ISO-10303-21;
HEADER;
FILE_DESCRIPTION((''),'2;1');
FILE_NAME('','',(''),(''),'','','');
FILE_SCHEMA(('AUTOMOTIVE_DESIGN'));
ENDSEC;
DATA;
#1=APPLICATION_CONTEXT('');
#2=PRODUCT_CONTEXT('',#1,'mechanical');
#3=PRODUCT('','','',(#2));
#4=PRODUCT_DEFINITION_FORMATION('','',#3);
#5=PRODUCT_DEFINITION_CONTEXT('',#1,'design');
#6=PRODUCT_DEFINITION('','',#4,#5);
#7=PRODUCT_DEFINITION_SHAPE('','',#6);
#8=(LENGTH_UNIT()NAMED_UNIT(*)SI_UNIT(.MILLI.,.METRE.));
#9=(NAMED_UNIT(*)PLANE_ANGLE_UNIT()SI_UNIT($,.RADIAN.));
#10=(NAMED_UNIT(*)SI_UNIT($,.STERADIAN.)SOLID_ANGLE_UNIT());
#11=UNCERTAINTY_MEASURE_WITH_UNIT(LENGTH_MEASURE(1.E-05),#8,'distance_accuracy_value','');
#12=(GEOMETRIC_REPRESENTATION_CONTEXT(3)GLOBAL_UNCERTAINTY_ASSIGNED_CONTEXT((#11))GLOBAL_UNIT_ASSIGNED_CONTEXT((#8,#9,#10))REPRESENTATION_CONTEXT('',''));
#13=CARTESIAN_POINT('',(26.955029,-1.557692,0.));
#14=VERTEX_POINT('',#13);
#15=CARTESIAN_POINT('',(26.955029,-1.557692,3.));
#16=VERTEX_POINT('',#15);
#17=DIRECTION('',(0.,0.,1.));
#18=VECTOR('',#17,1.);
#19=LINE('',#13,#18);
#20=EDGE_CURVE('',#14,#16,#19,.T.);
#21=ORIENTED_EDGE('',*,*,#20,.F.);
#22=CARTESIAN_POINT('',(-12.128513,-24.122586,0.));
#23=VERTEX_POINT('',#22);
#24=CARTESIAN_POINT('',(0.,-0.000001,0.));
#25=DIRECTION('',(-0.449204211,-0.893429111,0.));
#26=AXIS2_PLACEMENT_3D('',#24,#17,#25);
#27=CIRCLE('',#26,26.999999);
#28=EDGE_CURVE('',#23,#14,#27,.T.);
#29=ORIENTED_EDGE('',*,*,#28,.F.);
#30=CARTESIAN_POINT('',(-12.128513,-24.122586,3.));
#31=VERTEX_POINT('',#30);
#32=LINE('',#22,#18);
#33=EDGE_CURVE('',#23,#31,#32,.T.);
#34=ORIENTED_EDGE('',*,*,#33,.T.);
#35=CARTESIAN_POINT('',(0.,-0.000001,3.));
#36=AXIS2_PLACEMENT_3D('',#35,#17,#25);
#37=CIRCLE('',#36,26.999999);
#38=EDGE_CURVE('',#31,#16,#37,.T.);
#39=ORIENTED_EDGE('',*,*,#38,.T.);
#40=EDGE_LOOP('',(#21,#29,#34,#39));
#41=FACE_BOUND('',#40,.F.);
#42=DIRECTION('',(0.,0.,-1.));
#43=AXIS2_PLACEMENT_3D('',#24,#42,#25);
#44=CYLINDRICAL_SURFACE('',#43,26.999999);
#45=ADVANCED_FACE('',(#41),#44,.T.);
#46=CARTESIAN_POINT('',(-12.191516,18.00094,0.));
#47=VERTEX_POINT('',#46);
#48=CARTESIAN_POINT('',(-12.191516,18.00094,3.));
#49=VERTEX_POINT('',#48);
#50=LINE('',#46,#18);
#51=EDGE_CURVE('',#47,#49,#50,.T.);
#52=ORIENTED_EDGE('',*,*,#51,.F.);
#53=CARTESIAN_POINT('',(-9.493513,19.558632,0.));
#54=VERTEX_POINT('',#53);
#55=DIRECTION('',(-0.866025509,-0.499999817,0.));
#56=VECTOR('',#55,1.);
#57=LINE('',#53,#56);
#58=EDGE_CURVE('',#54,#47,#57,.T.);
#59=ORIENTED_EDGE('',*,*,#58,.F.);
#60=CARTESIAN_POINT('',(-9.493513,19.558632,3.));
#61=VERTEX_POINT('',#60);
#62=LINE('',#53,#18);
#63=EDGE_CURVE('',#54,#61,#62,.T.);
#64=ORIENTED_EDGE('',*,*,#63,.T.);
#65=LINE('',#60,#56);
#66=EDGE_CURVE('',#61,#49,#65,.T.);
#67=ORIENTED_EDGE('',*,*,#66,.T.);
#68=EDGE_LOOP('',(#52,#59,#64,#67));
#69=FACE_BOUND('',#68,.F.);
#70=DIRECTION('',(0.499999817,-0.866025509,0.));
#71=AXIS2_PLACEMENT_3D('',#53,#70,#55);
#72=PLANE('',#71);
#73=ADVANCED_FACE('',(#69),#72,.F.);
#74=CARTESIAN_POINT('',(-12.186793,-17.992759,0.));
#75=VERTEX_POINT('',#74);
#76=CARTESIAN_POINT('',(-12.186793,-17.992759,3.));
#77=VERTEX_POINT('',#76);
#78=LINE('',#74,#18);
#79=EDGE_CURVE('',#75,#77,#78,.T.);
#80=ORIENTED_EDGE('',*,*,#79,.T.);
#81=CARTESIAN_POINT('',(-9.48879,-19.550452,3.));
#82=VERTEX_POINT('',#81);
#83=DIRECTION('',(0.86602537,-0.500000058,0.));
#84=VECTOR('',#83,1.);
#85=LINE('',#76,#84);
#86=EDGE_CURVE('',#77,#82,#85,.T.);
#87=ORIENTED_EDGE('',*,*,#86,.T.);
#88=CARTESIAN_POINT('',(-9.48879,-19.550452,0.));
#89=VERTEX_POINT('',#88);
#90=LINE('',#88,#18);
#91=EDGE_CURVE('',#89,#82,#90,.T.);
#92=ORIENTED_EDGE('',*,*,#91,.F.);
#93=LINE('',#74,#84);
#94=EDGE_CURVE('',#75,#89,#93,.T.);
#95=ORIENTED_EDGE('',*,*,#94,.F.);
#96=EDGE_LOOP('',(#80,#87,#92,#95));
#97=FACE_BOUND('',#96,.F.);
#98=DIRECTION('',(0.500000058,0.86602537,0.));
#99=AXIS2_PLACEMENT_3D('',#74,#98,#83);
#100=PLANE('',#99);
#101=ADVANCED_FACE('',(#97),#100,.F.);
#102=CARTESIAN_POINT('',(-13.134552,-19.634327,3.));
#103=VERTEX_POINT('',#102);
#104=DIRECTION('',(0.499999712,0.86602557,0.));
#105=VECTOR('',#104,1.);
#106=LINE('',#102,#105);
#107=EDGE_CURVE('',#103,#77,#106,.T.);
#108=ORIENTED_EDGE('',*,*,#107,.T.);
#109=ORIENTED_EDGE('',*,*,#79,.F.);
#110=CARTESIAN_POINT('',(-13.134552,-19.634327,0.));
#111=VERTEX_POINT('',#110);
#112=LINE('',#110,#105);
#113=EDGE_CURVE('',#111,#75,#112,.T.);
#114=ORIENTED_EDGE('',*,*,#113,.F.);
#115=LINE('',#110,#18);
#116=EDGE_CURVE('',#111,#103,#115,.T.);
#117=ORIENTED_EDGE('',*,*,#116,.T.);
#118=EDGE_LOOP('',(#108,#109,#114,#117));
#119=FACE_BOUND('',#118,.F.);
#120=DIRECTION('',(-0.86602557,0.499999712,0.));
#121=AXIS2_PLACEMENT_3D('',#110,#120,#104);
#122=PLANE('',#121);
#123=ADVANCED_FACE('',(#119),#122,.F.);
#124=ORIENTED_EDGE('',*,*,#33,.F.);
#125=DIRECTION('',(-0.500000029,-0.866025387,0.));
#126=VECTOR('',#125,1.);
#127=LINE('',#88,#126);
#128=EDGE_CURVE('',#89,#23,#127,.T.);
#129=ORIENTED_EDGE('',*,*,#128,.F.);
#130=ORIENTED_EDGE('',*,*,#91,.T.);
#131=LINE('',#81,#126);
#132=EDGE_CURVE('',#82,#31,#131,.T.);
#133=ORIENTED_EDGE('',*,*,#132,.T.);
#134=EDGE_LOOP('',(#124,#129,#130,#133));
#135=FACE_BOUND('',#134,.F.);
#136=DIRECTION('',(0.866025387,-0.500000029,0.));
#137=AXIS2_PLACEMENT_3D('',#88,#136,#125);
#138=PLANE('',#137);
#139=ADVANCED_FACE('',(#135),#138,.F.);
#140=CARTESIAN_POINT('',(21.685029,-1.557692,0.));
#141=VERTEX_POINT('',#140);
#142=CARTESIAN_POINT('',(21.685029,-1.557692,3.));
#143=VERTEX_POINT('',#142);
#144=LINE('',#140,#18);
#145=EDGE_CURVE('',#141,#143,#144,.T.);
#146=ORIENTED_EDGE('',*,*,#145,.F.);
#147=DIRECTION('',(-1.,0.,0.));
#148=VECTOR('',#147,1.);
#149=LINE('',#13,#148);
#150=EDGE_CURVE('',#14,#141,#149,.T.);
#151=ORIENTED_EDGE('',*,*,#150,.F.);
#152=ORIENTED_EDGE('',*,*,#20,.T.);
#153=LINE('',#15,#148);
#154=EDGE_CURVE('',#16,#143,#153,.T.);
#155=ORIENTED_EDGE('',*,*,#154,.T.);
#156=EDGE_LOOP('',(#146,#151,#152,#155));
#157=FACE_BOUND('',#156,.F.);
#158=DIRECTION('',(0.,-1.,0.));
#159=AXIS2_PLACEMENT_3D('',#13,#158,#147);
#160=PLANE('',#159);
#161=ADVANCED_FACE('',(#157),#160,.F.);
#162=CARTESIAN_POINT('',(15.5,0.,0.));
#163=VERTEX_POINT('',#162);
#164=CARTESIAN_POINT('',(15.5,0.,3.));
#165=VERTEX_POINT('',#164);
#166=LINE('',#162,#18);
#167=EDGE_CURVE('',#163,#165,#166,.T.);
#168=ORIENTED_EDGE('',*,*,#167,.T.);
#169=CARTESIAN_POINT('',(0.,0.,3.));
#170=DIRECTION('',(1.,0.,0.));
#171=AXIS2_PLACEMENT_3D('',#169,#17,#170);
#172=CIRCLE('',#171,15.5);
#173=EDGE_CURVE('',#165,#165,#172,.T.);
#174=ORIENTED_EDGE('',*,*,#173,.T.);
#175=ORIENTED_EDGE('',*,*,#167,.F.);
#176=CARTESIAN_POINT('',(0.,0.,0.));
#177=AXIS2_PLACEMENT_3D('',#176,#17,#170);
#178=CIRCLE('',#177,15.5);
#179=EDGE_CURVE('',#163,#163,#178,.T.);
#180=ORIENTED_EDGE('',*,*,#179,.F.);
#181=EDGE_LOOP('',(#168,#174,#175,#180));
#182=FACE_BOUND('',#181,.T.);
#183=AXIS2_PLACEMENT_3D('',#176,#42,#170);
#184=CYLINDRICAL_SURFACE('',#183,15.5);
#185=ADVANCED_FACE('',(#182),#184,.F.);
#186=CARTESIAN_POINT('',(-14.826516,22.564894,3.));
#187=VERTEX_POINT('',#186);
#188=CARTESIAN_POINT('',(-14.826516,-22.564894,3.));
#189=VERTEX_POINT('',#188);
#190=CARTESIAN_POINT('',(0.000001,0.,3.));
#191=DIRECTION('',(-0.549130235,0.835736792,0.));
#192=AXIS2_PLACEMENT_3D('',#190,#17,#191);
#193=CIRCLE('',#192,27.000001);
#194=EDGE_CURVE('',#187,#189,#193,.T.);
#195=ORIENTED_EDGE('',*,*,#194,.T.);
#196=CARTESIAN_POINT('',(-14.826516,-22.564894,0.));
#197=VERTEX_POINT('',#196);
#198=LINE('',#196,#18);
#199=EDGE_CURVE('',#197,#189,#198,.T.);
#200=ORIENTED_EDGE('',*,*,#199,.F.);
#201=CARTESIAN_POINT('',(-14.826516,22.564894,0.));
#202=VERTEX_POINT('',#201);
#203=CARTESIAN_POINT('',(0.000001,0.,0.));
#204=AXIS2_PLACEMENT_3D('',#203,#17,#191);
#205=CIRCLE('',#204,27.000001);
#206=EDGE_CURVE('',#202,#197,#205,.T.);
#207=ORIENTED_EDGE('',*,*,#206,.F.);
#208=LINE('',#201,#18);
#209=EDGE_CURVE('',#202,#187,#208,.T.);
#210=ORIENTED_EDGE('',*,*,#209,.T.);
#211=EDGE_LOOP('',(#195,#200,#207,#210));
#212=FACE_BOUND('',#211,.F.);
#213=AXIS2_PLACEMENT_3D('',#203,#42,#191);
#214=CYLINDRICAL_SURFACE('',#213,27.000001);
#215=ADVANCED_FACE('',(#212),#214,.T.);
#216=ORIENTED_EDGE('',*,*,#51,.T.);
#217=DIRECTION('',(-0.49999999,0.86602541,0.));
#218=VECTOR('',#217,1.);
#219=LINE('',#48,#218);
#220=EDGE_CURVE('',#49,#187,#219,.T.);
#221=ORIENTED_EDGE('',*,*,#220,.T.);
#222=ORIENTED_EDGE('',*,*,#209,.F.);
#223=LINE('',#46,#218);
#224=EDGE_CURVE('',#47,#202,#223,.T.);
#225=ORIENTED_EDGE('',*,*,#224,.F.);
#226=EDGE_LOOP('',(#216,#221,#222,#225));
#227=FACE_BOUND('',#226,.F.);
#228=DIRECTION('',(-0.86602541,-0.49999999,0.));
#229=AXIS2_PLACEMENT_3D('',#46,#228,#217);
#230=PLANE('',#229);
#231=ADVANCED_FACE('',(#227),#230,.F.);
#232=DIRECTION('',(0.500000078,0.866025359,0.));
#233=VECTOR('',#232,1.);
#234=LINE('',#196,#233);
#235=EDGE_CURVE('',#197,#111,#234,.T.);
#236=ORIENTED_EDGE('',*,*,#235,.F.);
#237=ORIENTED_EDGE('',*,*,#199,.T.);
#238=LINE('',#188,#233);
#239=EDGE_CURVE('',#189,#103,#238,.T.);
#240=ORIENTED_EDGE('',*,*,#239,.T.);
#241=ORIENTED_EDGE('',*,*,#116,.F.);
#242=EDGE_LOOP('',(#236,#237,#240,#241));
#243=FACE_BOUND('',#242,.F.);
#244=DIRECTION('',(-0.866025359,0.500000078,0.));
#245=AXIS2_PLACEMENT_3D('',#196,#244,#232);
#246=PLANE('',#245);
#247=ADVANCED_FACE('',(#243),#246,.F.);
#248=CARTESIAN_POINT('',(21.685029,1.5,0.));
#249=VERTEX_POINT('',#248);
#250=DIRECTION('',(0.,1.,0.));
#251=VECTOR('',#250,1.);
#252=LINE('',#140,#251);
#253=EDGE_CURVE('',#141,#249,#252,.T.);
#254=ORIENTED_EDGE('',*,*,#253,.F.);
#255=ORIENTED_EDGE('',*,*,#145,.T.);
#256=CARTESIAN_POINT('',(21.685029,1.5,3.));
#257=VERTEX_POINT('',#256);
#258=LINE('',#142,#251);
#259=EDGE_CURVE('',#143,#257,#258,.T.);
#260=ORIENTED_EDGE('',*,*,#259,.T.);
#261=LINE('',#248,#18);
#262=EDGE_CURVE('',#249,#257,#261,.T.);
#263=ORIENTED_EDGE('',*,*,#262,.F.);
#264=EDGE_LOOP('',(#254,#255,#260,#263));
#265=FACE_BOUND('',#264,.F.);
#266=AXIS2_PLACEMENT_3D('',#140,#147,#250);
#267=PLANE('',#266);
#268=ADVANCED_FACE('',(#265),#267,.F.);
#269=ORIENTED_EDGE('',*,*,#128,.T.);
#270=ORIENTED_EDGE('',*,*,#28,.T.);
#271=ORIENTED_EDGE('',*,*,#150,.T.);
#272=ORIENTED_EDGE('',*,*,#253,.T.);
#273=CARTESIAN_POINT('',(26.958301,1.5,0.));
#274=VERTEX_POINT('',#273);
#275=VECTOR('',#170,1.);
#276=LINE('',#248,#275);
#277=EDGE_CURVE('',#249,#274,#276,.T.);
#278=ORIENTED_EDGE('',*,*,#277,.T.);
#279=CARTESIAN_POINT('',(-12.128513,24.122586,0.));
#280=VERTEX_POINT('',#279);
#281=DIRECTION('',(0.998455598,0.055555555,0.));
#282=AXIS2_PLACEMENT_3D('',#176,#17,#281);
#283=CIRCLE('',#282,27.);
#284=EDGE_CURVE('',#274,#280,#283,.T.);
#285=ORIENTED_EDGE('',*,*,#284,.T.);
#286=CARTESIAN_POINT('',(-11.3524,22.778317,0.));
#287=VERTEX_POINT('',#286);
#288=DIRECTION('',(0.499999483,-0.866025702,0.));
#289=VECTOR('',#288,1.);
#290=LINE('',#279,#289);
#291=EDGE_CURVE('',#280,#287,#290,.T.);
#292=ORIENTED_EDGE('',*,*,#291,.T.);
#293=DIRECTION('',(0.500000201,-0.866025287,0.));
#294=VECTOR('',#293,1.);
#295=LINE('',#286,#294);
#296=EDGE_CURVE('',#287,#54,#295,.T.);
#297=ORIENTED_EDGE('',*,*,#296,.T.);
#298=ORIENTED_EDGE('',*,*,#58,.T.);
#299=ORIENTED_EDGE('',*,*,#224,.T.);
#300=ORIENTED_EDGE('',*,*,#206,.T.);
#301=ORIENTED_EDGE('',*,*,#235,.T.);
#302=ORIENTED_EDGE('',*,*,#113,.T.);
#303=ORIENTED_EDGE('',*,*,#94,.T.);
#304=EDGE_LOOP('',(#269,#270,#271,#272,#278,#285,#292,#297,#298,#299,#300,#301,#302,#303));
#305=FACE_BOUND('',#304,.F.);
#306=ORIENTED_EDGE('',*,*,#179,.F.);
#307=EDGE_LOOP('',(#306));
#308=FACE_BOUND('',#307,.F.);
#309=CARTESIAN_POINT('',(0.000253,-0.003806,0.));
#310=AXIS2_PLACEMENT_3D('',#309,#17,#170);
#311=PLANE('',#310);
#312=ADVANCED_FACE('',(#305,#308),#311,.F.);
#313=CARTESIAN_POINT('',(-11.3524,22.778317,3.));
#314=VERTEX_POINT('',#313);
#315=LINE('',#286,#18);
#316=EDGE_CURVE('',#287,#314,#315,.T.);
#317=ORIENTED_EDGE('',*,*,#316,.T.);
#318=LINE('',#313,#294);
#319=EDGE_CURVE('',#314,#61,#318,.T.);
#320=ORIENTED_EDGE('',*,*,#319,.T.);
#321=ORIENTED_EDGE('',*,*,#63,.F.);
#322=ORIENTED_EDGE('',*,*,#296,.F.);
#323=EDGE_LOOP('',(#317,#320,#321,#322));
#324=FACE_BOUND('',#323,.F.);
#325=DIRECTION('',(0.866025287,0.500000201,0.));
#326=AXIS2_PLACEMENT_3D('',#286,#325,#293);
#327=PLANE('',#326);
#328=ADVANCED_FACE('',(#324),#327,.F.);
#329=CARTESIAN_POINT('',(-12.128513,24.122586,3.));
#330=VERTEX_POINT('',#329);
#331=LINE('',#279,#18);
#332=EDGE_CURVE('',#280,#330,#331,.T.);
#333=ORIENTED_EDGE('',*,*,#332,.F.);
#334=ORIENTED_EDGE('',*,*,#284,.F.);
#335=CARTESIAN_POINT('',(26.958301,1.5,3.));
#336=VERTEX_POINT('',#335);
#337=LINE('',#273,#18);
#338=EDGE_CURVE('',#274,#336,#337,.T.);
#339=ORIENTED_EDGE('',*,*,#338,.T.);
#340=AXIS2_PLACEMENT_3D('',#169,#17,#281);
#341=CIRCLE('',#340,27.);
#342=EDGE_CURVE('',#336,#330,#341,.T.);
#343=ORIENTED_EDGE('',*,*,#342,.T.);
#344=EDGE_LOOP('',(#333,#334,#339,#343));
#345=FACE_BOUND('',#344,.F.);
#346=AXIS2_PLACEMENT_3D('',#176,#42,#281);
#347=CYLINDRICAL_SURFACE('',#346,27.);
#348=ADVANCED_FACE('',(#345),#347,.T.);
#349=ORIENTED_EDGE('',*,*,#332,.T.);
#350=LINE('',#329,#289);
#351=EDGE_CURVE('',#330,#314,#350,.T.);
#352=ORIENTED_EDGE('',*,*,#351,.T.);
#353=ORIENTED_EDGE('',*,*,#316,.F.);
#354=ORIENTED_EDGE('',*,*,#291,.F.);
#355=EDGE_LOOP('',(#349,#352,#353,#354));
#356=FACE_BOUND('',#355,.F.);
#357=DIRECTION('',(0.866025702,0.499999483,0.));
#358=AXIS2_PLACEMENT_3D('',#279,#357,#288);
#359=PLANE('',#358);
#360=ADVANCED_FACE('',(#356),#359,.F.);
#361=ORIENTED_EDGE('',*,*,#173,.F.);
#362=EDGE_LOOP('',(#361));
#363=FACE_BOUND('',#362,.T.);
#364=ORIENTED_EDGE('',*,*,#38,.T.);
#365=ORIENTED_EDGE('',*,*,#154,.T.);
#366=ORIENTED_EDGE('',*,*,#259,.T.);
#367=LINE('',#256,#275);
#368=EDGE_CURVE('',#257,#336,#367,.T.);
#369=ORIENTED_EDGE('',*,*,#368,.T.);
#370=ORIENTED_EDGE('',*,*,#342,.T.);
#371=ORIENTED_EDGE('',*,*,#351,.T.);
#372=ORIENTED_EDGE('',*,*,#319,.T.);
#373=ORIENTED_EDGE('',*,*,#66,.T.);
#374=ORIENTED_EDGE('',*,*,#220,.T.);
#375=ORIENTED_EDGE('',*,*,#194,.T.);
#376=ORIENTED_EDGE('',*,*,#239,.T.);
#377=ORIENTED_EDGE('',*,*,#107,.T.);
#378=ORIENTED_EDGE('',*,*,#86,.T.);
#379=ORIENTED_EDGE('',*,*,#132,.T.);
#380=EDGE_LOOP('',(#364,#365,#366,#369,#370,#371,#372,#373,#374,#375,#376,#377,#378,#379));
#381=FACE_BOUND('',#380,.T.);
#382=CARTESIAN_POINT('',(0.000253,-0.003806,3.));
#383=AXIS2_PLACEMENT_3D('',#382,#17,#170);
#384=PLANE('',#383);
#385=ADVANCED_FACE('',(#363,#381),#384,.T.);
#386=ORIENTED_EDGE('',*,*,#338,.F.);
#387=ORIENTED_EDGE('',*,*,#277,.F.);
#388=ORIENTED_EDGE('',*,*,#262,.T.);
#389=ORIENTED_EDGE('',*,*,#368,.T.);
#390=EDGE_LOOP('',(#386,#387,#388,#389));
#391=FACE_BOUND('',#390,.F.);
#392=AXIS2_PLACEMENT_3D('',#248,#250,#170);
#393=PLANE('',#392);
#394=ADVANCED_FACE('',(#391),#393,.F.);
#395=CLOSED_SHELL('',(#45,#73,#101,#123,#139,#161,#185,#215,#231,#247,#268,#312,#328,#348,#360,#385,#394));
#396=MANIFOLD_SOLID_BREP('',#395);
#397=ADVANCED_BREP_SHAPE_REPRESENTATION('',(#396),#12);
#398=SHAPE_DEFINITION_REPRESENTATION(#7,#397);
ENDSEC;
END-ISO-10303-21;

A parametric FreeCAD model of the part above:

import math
import FreeCAD as App
import Part
import Sketcher
from FreeCAD import Vector
Q = App.Units.Quantity

doc = App.newDocument("Part")
params = doc.addObject("Spreadsheet::Sheet", "Params")
for row, (alias, value) in enumerate([
    ("sketch1_diameter", "31 mm"),
    ("sketch1_radius", "27.000001 mm"),
    ("sketch1_width", "5.27 mm"),
    ("sketch1_length", "5.27 mm"),
    ("pad1_length", "3 mm"),
], start=1):
    params.set(f"A{row}", alias)
    params.set(f"B{row}", "=" + value)
    params.setAlias(f"B{row}", alias)

body = doc.addObject("PartDesign::Body", "Body")

# Sketch on XY plane
sketch1 = body.newObject("Sketcher::SketchObject", "Sketch")
sketch1.AttachmentSupport = (doc.getObject("XY_Plane"), [""])
sketch1.MapMode = "FlatFace"
sketch1.addGeometry(Part.LineSegment(Vector(-12.2, 18, 0), Vector(-14.8, 22.6, 0)), False)
sketch1.addGeometry(Part.ArcOfCircle(Part.Circle(Vector(0, 0, 0), Vector(0, 0, 1), 27), math.radians(123), math.radians(237)), False)
sketch1.addGeometry(Part.LineSegment(Vector(-14.8, -22.6, 0), Vector(-13.1, -19.6, 0)), False)
sketch1.addGeometry(Part.LineSegment(Vector(-13.1, -19.6, 0), Vector(-12.2, -18, 0)), False)
sketch1.addGeometry(Part.LineSegment(Vector(-12.2, -18, 0), Vector(-9.5, -19.6, 0)), False)
sketch1.addGeometry(Part.LineSegment(Vector(-9.5, -19.6, 0), Vector(-12.1, -24.1, 0)), False)
sketch1.addGeometry(Part.ArcOfCircle(Part.Circle(Vector(0, 0, 0), Vector(0, 0, 1), 27), math.radians(-117), math.radians(-3)), False)
sketch1.addGeometry(Part.LineSegment(Vector(27, -1.6, 0), Vector(21.7, -1.6, 0)), False)
sketch1.addGeometry(Part.LineSegment(Vector(21.7, -1.6, 0), Vector(21.7, 1.5, 0)), False)
sketch1.addGeometry(Part.LineSegment(Vector(21.7, 1.5, 0), Vector(27, 1.5, 0)), False)
sketch1.addGeometry(Part.ArcOfCircle(Part.Circle(Vector(0, 0, 0), Vector(0, 0, 1), 27), math.radians(3), math.radians(117)), False)
sketch1.addGeometry(Part.LineSegment(Vector(-12.1, 24.1, 0), Vector(-11.4, 22.8, 0)), False)
sketch1.addGeometry(Part.LineSegment(Vector(-11.4, 22.8, 0), Vector(-9.5, 19.6, 0)), False)
sketch1.addGeometry(Part.LineSegment(Vector(-9.5, 19.6, 0), Vector(-12.2, 18, 0)), False)
sketch1.addGeometry(Part.Circle(Vector(0, 0, 0), Vector(0, 0, 1), 15.5), False)
sketch1.addConstraint(Sketcher.Constraint("Coincident", 0, 2, 1, 1))
sketch1.addConstraint(Sketcher.Constraint("Coincident", 1, 2, 2, 1))
sketch1.addConstraint(Sketcher.Constraint("Coincident", 2, 2, 3, 1))
sketch1.addConstraint(Sketcher.Constraint("Coincident", 3, 2, 4, 1))
sketch1.addConstraint(Sketcher.Constraint("Coincident", 4, 2, 5, 1))
sketch1.addConstraint(Sketcher.Constraint("Coincident", 5, 2, 6, 1))
sketch1.addConstraint(Sketcher.Constraint("Coincident", 6, 2, 7, 1))
sketch1.addConstraint(Sketcher.Constraint("Coincident", 7, 2, 8, 1))
sketch1.addConstraint(Sketcher.Constraint("Coincident", 8, 2, 9, 1))
sketch1.addConstraint(Sketcher.Constraint("Coincident", 9, 2, 10, 1))
sketch1.addConstraint(Sketcher.Constraint("Coincident", 10, 2, 11, 1))
sketch1.addConstraint(Sketcher.Constraint("Coincident", 11, 2, 12, 1))
sketch1.addConstraint(Sketcher.Constraint("Coincident", 12, 2, 13, 1))
sketch1.addConstraint(Sketcher.Constraint("Coincident", 13, 2, 0, 1))
sketch1.addConstraint(Sketcher.Constraint("Horizontal", 7))
sketch1.addConstraint(Sketcher.Constraint("Vertical", 8))
sketch1.addConstraint(Sketcher.Constraint("Horizontal", 9))
sketch1.addConstraint(Sketcher.Constraint("Coincident", 1, 3, -1, 1))
sketch1.addConstraint(Sketcher.Constraint("Coincident", 6, 3, -1, 1))
sketch1.addConstraint(Sketcher.Constraint("Coincident", 10, 3, -1, 1))
sketch1.addConstraint(Sketcher.Constraint("Coincident", 14, 3, -1, 1))
sketch1.addConstraint(Sketcher.Constraint("Equal", 1, 6))
sketch1.addConstraint(Sketcher.Constraint("Equal", 6, 10))
sketch1.addConstraint(Sketcher.Constraint("Parallel", 2, 3))
sketch1.addConstraint(Sketcher.Constraint("Perpendicular", 3, 4))
sketch1.addConstraint(Sketcher.Constraint("Perpendicular", 4, 5))
sketch1.addConstraint(Sketcher.Constraint("Parallel", 0, 11))
sketch1.addConstraint(Sketcher.Constraint("Parallel", 11, 12))
sketch1.addConstraint(Sketcher.Constraint("Perpendicular", 12, 13))
sketch1.addConstraint(Sketcher.Constraint("Vertical", 0, 2, 1, 2))
sketch1.addConstraint(Sketcher.Constraint("Vertical", 5, 2, 10, 2))
sketch1.addConstraint(Sketcher.Constraint("Diameter", 14, Q("31 mm")))
sketch1.addConstraint(Sketcher.Constraint("Radius", 1, Q("27.000001 mm")))
sketch1.addConstraint(Sketcher.Constraint("Angle", 0, Q("119.999999 deg")))
sketch1.addConstraint(Sketcher.Constraint("Angle", 2, Q("59.999995 deg")))
sketch1.addConstraint(Sketcher.Constraint("DistanceX", 7, 2, 7, 1, Q("5.27 mm")))
sketch1.addConstraint(Sketcher.Constraint("DistanceY", -1, 1, 8, 2, Q("1.5 mm")))
sketch1.addConstraint(Sketcher.Constraint("Distance", 0, Q("5.27 mm")))
sketch1.addConstraint(Sketcher.Constraint("DistanceX", 9, 1, 9, 2, Q("5.273272 mm")))
sketch1.addConstraint(Sketcher.Constraint("DistanceX", 11, 2, -1, 1, Q("11.3524 mm")))
sketch1.addConstraint(Sketcher.Constraint("Distance", 3, Q("1.895519 mm")))
sketch1.addConstraint(Sketcher.Constraint("DistanceX", 2, 2, -1, 1, Q("13.134552 mm")))
sketch1.addConstraint(Sketcher.Constraint("DistanceY", 3, 2, -1, 1, Q("17.992759 mm")))
sketch1.addConstraint(Sketcher.Constraint("DistanceX", 4, 2, -1, 1, Q("9.48879 mm")))
sketch1.setExpression("Constraints[31]", "Params.sketch1_diameter")
sketch1.setExpression("Constraints[32]", "Params.sketch1_radius")
sketch1.setExpression("Constraints[35]", "Params.sketch1_width")
sketch1.setExpression("Constraints[37]", "Params.sketch1_length")
pad1 = body.newObject("PartDesign::Pad", "Pad")
pad1.Profile = sketch1
pad1.setExpression("Length", "Params.pad1_length")

doc.recompute()
